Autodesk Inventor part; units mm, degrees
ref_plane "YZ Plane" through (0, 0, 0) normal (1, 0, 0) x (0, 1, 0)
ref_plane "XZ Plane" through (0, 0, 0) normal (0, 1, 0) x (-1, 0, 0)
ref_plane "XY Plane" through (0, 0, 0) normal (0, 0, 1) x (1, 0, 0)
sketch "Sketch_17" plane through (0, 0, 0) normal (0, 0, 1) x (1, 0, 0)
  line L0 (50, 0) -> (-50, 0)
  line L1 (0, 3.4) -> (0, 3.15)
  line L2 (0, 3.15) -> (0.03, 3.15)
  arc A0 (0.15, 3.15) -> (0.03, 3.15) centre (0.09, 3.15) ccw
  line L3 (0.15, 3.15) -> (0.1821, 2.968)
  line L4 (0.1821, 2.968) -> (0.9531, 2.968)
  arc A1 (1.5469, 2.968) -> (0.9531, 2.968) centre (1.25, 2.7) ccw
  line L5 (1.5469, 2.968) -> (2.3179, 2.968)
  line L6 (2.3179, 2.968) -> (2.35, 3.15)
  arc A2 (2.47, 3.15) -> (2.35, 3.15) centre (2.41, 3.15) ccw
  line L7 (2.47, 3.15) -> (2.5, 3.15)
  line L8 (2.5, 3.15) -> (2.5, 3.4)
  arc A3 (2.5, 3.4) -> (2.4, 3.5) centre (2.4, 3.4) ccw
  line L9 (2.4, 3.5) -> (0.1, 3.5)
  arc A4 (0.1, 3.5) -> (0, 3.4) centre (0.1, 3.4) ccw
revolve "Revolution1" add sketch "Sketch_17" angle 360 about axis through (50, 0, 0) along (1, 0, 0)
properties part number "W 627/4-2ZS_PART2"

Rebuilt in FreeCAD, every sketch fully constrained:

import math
import FreeCAD as App
import Part
import Sketcher
Q = App.Units.Quantity

doc = App.newDocument("Part")
body = doc.addObject("PartDesign::Body", "Body")

# Sketch on XY plane
sketch1 = body.newObject("Sketcher::SketchObject", "Sketch")
sketch1.AttachmentSupport = (doc.getObject("XY_Plane"), [""])
sketch1.MapMode = "FlatFace"
sketch1.addGeometry(Part.ArcOfCircle(Part.Circle(App.Vector(0.1, 3.4, 0), App.Vector(0, 0, 1), 0.1), math.radians(90), math.radians(180)), False)
sketch1.addGeometry(Part.LineSegment(App.Vector(0, 3.4, 0), App.Vector(0, 3.15, 0)), False)
sketch1.addGeometry(Part.LineSegment(App.Vector(0, 3.15, 0), App.Vector(0.03, 3.15, 0)), False)
sketch1.addGeometry(Part.ArcOfCircle(Part.Circle(App.Vector(0.09, 3.15, 0), App.Vector(0, 0, 1), 0.06), math.radians(0), math.radians(180)), False)
sketch1.addGeometry(Part.LineSegment(App.Vector(0.15, 3.15, 0), App.Vector(0.182, 2.968, 0)), False)
sketch1.addGeometry(Part.LineSegment(App.Vector(0.182, 2.968, 0), App.Vector(0.953, 2.968, 0)), False)
sketch1.addGeometry(Part.ArcOfCircle(Part.Circle(App.Vector(1.25, 2.7, 0), App.Vector(0, 0, 1), 0.4), math.radians(42), math.radians(138)), False)
sketch1.addGeometry(Part.LineSegment(App.Vector(1.547, 2.968, 0), App.Vector(2.318, 2.968, 0)), False)
sketch1.addGeometry(Part.LineSegment(App.Vector(2.318, 2.968, 0), App.Vector(2.35, 3.15, 0)), False)
sketch1.addGeometry(Part.ArcOfCircle(Part.Circle(App.Vector(2.41, 3.15, 0), App.Vector(0, 0, 1), 0.06), math.radians(0), math.radians(180)), False)
sketch1.addGeometry(Part.LineSegment(App.Vector(2.47, 3.15, 0), App.Vector(2.5, 3.15, 0)), False)
sketch1.addGeometry(Part.LineSegment(App.Vector(2.5, 3.15, 0), App.Vector(2.5, 3.4, 0)), False)
sketch1.addGeometry(Part.ArcOfCircle(Part.Circle(App.Vector(2.4, 3.4, 0), App.Vector(0, 0, 1), 0.1), math.radians(0), math.radians(90)), False)
sketch1.addGeometry(Part.LineSegment(App.Vector(2.4, 3.5, 0), App.Vector(0.1, 3.5, 0)), False)
sketch1.addConstraint(Sketcher.Constraint("Tangent", 0, 2, 1, 1))
sketch1.addConstraint(Sketcher.Constraint("Coincident", 1, 2, 2, 1))
sketch1.addConstraint(Sketcher.Constraint("Coincident", 2, 2, 3, 2))
sketch1.addConstraint(Sketcher.Constraint("Coincident", 3, 1, 4, 1))
sketch1.addConstraint(Sketcher.Constraint("Coincident", 4, 2, 5, 1))
sketch1.addConstraint(Sketcher.Constraint("Coincident", 5, 2, 6, 2))
sketch1.addConstraint(Sketcher.Constraint("Coincident", 6, 1, 7, 1))
sketch1.addConstraint(Sketcher.Constraint("Coincident", 7, 2, 8, 1))
sketch1.addConstraint(Sketcher.Constraint("Coincident", 8, 2, 9, 2))
sketch1.addConstraint(Sketcher.Constraint("Coincident", 9, 1, 10, 1))
sketch1.addConstraint(Sketcher.Constraint("Coincident", 10, 2, 11, 1))
sketch1.addConstraint(Sketcher.Constraint("Tangent", 11, 2, 12, 1))
sketch1.addConstraint(Sketcher.Constraint("Tangent", 12, 2, 13, 1))
sketch1.addConstraint(Sketcher.Constraint("Tangent", 13, 2, 0, 1))
sketch1.addConstraint(Sketcher.Constraint("Vertical", 1))
sketch1.addConstraint(Sketcher.Constraint("Horizontal", 2))
sketch1.addConstraint(Sketcher.Constraint("Horizontal", 5))
sketch1.addConstraint(Sketcher.Constraint("Horizontal", 7))
sketch1.addConstraint(Sketcher.Constraint("Horizontal", 10))
sketch1.addConstraint(Sketcher.Constraint("Vertical", 11))
sketch1.addConstraint(Sketcher.Constraint("Horizontal", 13))
sketch1.addConstraint(Sketcher.Constraint("Equal", 3, 9))
sketch1.addConstraint(Sketcher.Constraint("Equal", 0, 12))
sketch1.addConstraint(Sketcher.Constraint("PointOnObject", 0, 2, -2))
sketch1.addConstraint(Sketcher.Constraint("Horizontal", 3, 3, 9, 3))
sketch1.addConstraint(Sketcher.Constraint("Horizontal", 9, 3, 1, 2))
sketch1.addConstraint(Sketcher.Constraint("Horizontal", 2, 2, 3, 1))
sketch1.addConstraint(Sketcher.Constraint("Horizontal", 5, 2, 6, 1))
sketch1.addConstraint(Sketcher.Constraint("Horizontal", 3, 1, 8, 2))
sketch1.addConstraint(Sketcher.Constraint("Horizontal", 8, 2, 9, 1))
sketch1.addConstraint(Sketcher.Constraint("Equal", 5, 7))
sketch1.addConstraint(Sketcher.Constraint("Equal", 2, 10))
sketch1.addConstraint(Sketcher.Constraint("Equal", 4, 8))
sketch1.addConstraint(Sketcher.Constraint("Radius", 0, Q("0.1 mm")))
sketch1.addConstraint(Sketcher.Constraint("Radius", 6, Q("0.4 mm")))
sketch1.addConstraint(Sketcher.Constraint("Radius", 3, Q("0.06 mm")))
sketch1.addConstraint(Sketcher.Constraint("DistanceX", 13, 2, 13, 1, Q("2.3 mm")))
sketch1.addConstraint(Sketcher.Constraint("DistanceX", 2, 1, 2, 2, Q("0.03 mm")))
sketch1.addConstraint(Sketcher.Constraint("DistanceY", 1, 2, 1, 1, Q("0.25 mm")))
sketch1.addConstraint(Sketcher.Constraint("DistanceY", -1, 1, 0, 3, Q("3.4 mm")))
sketch1.addConstraint(Sketcher.Constraint("DistanceY", -1, 1, 6, 3, Q("2.7 mm")))
sketch1.addConstraint(Sketcher.Constraint("DistanceX", 5, 1, 5, 2, Q("0.771 mm")))
sketch1.addConstraint(Sketcher.Constraint("DistanceX", -1, 1, 4, 2, Q("0.182 mm")))
revolution = body.newObject("PartDesign::Revolution", "Revolution")
revolution.Profile = sketch1
revolution.ReferenceAxis = (sketch1, ["H_Axis"])
revolution.Angle = 360

doc.recompute()
